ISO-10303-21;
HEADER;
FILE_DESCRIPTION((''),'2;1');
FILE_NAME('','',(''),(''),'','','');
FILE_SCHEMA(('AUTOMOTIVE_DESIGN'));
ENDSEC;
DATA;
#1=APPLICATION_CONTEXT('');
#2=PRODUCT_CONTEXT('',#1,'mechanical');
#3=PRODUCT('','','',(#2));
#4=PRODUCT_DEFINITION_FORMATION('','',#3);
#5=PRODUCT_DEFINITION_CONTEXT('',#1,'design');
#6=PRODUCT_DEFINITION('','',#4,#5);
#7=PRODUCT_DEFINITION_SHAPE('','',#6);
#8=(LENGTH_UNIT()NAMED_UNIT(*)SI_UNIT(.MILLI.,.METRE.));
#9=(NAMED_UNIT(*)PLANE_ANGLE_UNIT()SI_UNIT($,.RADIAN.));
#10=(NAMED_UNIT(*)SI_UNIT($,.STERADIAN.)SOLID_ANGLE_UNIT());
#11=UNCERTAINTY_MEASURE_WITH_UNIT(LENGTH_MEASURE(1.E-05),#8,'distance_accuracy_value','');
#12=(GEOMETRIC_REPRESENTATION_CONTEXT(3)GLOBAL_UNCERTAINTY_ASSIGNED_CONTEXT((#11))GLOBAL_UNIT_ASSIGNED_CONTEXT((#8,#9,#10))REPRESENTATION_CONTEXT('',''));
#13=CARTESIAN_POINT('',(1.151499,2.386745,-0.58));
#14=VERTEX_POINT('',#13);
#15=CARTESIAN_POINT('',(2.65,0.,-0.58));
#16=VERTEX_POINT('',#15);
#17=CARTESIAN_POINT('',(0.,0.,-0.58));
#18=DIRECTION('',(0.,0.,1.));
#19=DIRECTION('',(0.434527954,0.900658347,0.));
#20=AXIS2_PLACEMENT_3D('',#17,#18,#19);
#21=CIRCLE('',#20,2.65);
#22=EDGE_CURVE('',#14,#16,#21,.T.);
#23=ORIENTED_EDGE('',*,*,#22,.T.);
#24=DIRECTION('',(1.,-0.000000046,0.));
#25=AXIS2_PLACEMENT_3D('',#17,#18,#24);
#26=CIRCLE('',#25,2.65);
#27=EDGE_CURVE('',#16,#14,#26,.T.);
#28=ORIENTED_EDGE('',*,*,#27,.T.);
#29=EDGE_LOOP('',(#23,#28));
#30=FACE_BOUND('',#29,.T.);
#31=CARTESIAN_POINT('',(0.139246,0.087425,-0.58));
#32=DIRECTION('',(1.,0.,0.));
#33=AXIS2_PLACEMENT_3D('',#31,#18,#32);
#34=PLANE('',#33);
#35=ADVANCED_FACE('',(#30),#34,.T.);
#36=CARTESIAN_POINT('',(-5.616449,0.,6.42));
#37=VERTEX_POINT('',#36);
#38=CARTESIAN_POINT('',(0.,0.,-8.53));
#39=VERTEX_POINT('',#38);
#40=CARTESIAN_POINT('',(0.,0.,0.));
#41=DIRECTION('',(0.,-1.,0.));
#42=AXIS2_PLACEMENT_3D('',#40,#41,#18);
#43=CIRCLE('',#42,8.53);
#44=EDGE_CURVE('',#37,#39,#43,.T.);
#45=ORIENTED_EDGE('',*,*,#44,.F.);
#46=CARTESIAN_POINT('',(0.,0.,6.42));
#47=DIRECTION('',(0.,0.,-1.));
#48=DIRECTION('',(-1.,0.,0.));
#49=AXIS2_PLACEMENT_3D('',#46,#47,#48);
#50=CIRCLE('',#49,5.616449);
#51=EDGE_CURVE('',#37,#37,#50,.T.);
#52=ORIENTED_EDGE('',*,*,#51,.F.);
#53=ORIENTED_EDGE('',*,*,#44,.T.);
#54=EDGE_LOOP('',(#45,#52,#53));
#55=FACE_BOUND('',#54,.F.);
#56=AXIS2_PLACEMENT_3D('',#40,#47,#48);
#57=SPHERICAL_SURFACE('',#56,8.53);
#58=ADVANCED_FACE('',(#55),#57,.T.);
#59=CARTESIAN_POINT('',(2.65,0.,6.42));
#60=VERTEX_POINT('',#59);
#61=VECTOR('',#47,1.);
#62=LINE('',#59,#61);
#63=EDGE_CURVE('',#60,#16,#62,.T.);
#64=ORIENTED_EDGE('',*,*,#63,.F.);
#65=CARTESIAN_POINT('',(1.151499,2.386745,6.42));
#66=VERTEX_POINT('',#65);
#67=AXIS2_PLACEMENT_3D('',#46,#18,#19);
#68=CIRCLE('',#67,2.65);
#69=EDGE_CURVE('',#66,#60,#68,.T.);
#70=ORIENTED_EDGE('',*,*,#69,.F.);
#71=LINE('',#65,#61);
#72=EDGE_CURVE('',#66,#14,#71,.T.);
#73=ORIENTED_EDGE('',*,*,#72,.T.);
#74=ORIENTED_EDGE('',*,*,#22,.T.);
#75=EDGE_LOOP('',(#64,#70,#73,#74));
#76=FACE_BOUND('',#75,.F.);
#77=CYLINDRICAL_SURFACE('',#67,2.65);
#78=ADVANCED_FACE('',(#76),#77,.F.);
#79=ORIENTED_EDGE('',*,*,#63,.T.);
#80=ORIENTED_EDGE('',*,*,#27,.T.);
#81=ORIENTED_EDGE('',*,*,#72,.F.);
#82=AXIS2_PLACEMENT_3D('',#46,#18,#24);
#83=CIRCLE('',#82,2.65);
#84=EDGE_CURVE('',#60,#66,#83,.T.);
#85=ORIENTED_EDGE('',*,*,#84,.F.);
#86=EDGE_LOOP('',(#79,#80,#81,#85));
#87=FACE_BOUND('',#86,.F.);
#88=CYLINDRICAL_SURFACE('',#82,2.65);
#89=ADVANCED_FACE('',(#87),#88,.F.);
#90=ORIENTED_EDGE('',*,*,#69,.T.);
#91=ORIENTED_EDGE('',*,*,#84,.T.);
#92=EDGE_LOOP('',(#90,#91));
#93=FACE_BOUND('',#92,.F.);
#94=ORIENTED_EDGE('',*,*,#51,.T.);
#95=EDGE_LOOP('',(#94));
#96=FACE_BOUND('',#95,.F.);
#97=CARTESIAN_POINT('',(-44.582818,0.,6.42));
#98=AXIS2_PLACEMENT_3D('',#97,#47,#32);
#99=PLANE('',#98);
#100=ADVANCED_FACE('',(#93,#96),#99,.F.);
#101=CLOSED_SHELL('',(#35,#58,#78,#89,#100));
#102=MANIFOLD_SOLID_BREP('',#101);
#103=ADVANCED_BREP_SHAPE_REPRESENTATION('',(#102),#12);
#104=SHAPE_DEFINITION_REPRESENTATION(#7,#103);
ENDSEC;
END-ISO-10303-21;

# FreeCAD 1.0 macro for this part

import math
import FreeCAD as App
import Part
import Sketcher

V = App.Vector
Q = App.Units.Quantity


def add_polygon(sketch, points):
    """Adds a closed chain of lines whose ends are joined by coincident constraints."""
    first, n = sketch.GeometryCount, len(points)
    for a, b in zip(points, points[1:] + points[:1]):
        sketch.addGeometry(Part.LineSegment(App.Vector(*a, 0), App.Vector(*b, 0)), False)
    for i in range(n):
        sketch.addConstraint(Sketcher.Constraint("Coincident", first + i, 2, first + (i + 1) % n, 1))

doc = App.newDocument("Part")
body = doc.addObject("PartDesign::Body", "Body")

# Sketch on XZ plane
sketch1 = body.newObject("Sketcher::SketchObject", "Sketch")
sketch1.AttachmentSupport = (doc.getObject("XZ_Plane"), [""])
sketch1.MapMode = "FlatFace"
sketch1.addGeometry(Part.ArcOfCircle(Part.Circle(V(0, 0, 0), V(0, 0, 1), 9), math.radians(90), math.radians(270)), False)
sketch1.addGeometry(Part.LineSegment(V(0, -9, 0), V(0, 9, 0)), False)
sketch1.addConstraint(Sketcher.Constraint("Coincident", 0, 1, 1, 2))
sketch1.addConstraint(Sketcher.Constraint("Coincident", 1, 1, 0, 2))
sketch1.addConstraint(Sketcher.Constraint("Vertical", 1))
sketch1.addConstraint(Sketcher.Constraint("Coincident", 0, 3, -1, 1))
sketch1.addConstraint(Sketcher.Constraint("PointOnObject", 0, 1, -2))
sketch1.addConstraint(Sketcher.Constraint("Radius", 0, Q("8.53 mm")))
revolution = body.newObject("PartDesign::Revolution", "Revolution")
revolution.Profile = sketch1
revolution.ReferenceAxis = (sketch1, ["V_Axis"])
revolution.Angle = 360

# Sketch on XZ plane
sketch2 = body.newObject("Sketcher::SketchObject", "Sketch001")
sketch2.AttachmentSupport = (doc.getObject("XZ_Plane"), [""])
sketch2.MapMode = "FlatFace"
add_polygon(sketch2, [(-45, 6), (48, 6), (0, 28)])  # lines 0-2
sketch2.addConstraint(Sketcher.Constraint("Horizontal", 0))
sketch2.addConstraint(Sketcher.Constraint("PointOnObject", 1, 2, -2))
sketch2.addConstraint(Sketcher.Constraint("DistanceY", -1, 1, 0, 2, Q("6.42 mm")))
sketch2.addConstraint(Sketcher.Constraint("Distance", 1, Q("52.487889 mm")))
sketch2.addConstraint(Sketcher.Constraint("DistanceX", 0, 1, 0, 2, Q("92.280593 mm")))
sketch2.addConstraint(Sketcher.Constraint("DistanceX", 2, 2, -1, 1, Q("44.582818 mm")))
pocket1 = body.newObject("PartDesign::Pocket", "Pocket")
pocket1.Profile = sketch2
pocket1.Length = 40
pocket1.Midplane = True

# Sketch on XY plane
sketch3 = body.newObject("Sketcher::SketchObject", "Sketch002")
sketch3.AttachmentSupport = (doc.getObject("XY_Plane"), [""])
sketch3.MapMode = "FlatFace"
sketch3.AttachmentOffset = App.Placement(V(0, 0, 6.42), App.Rotation())
sketch3.addGeometry(Part.ArcOfCircle(Part.Circle(V(0, 0, 0), V(0, 0, 1), 2.7), math.radians(64), math.radians(360)), False)
sketch3.addGeometry(Part.ArcOfCircle(Part.Circle(V(0, 0, 0), V(0, 0, 1), 2.7), math.radians(0), math.radians(64)), False)
sketch3.addConstraint(Sketcher.Constraint("Tangent", 0, 1, 1, 2))
sketch3.addConstraint(Sketcher.Constraint("Coincident", 1, 1, 0, 2))
sketch3.addConstraint(Sketcher.Constraint("Coincident", 0, 3, -1, 1))
sketch3.addConstraint(Sketcher.Constraint("PointOnObject", 1, 1, -1))
sketch3.addConstraint(Sketcher.Constraint("Radius", 0, Q("2.65 mm")))
sketch3.addConstraint(Sketcher.Constraint("DistanceX", -1, 1, 0, 1, Q("1.151499 mm")))
pocket2 = body.newObject("PartDesign::Pocket", "Pocket001")
pocket2.Profile = sketch3
pocket2.Length = 7

doc.recompute()
